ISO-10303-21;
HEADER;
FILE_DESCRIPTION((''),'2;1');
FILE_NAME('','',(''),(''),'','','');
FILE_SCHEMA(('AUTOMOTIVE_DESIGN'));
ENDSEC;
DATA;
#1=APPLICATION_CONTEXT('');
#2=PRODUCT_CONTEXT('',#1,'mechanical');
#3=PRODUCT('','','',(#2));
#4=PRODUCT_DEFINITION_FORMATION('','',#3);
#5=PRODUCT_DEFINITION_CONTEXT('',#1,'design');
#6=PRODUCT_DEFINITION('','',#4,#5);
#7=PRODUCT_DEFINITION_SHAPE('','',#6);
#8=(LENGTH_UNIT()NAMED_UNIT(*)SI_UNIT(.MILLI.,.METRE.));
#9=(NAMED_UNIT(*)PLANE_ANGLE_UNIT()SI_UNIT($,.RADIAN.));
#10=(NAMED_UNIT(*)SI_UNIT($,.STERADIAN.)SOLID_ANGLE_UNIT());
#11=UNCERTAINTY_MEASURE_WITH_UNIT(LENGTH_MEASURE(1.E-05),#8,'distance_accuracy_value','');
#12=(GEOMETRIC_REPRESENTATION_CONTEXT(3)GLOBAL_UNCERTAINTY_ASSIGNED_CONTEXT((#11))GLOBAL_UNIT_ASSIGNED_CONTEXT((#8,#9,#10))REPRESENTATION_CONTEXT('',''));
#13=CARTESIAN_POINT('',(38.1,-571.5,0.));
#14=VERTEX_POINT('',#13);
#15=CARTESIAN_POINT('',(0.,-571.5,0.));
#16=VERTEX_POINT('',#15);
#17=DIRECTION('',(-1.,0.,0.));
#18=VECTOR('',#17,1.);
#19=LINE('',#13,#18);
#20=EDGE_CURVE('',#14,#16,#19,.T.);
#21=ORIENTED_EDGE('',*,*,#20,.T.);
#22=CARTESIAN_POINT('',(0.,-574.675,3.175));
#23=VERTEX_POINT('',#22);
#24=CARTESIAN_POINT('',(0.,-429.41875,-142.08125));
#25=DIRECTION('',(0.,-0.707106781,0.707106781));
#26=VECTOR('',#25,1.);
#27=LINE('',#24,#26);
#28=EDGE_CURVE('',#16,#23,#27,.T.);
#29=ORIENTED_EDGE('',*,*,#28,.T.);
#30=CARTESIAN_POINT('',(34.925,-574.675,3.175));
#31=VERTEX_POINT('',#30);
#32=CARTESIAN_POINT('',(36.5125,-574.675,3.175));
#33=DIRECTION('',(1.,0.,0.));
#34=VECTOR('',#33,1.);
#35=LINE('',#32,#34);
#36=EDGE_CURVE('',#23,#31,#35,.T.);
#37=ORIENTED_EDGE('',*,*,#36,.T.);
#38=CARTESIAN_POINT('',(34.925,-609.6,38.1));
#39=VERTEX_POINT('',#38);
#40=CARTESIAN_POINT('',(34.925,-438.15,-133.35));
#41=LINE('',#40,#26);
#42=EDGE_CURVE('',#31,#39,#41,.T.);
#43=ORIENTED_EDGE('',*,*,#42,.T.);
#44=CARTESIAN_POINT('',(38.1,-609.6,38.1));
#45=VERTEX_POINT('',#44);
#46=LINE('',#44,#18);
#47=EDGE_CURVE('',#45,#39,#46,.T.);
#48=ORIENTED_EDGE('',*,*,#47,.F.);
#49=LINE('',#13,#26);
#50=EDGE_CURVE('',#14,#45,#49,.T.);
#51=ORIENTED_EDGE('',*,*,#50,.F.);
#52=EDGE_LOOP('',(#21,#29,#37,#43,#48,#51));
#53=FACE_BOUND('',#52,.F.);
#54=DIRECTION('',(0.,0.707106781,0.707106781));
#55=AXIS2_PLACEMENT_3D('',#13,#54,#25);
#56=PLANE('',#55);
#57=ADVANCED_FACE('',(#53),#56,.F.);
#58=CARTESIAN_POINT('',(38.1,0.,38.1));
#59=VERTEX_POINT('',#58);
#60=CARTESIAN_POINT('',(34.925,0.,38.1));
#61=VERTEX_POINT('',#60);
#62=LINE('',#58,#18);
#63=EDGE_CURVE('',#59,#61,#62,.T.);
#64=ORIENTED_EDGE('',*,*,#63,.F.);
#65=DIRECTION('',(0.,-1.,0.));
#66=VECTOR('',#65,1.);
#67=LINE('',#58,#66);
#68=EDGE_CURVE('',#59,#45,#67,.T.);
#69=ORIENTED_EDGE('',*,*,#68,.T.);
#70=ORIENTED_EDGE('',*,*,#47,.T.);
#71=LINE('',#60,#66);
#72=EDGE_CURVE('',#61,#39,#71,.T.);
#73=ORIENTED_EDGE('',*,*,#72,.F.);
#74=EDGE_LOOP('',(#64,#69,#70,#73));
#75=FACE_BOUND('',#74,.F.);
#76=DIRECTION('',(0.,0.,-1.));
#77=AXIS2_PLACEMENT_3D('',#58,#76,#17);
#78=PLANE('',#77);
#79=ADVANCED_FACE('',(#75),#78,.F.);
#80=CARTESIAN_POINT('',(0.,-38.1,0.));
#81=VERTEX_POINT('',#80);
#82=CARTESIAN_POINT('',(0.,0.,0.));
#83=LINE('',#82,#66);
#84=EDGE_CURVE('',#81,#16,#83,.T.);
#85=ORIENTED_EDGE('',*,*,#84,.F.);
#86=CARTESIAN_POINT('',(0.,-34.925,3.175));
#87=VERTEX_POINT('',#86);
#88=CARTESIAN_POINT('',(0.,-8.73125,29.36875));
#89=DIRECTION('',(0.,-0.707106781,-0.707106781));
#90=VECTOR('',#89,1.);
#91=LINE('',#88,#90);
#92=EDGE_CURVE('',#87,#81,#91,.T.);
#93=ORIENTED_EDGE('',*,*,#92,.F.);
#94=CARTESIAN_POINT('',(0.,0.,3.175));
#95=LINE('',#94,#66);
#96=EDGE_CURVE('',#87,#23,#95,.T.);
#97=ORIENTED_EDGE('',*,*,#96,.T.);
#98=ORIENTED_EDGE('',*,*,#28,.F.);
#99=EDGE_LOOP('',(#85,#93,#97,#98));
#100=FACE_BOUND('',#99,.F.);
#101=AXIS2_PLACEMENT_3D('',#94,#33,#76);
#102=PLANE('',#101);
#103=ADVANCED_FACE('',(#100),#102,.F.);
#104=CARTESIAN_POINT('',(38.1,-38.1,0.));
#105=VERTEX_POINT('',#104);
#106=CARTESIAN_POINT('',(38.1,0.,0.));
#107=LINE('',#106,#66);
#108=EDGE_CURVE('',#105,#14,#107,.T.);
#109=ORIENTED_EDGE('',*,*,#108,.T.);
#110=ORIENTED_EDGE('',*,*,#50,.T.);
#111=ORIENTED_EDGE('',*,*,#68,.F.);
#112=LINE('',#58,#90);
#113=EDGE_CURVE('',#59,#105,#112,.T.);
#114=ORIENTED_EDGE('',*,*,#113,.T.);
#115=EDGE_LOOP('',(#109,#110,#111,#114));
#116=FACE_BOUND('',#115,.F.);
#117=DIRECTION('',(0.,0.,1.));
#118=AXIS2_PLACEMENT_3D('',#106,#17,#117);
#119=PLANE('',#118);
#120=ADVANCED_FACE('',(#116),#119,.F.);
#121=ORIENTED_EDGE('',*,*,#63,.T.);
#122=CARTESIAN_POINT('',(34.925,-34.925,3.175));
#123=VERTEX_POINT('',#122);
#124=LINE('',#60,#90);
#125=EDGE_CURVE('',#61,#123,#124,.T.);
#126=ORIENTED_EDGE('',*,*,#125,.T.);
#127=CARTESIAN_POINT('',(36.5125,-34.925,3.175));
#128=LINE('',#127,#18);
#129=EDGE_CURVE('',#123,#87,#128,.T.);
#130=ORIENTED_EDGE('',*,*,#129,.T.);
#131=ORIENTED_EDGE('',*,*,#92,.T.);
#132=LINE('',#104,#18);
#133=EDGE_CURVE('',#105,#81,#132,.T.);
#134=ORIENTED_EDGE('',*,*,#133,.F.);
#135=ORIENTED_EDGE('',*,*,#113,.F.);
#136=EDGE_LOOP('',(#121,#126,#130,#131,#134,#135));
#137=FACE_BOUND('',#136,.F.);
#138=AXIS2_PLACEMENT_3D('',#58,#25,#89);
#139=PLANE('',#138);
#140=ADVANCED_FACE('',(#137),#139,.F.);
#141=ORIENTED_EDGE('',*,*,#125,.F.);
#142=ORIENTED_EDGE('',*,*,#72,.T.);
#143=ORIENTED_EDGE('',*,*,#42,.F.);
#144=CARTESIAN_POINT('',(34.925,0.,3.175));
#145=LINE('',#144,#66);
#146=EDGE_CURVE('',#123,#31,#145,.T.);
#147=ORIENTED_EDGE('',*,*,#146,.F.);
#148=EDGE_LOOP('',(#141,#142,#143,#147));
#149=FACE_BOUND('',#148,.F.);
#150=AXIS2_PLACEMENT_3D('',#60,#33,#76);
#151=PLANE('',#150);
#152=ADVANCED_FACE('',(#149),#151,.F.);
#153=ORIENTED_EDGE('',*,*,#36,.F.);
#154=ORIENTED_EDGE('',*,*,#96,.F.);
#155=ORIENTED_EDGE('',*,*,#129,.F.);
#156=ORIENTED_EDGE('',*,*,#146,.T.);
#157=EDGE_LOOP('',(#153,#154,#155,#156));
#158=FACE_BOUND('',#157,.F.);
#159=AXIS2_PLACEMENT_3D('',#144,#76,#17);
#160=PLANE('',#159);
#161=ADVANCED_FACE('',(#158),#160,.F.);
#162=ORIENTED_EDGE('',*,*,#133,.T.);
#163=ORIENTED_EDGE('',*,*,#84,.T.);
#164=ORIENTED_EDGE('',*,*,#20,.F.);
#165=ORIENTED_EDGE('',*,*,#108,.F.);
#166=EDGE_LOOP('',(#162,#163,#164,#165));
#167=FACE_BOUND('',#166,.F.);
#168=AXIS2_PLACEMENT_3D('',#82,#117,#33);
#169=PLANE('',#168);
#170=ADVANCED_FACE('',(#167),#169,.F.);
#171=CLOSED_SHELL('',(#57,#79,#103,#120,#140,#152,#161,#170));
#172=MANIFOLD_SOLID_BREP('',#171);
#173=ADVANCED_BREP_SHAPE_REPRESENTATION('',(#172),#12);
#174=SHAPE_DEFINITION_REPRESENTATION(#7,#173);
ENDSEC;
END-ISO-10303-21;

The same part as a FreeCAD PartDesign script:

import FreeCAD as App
import Part
import Sketcher
from FreeCAD import Vector
Q = App.Units.Quantity

doc = App.newDocument("Part")
params = doc.addObject("Spreadsheet::Sheet", "Params")
for row, (alias, value) in enumerate([
    ("sketch1_width", "1.5 in"),
    ("sketch1_width2", "0.125 in"),
    ("pad1_length", "24 in"),
    ("sketch2_width", "1.5 in"),
], start=1):
    params.set(f"A{row}", alias)
    params.set(f"B{row}", "=" + value)
    params.setAlias(f"B{row}", alias)

body = doc.addObject("PartDesign::Body", "Body")

# Sketch on XZ plane
sketch1 = body.newObject("Sketcher::SketchObject", "Sketch")
sketch1.AttachmentSupport = (doc.getObject("XZ_Plane"), [""])
sketch1.MapMode = "FlatFace"
sketch1.addGeometry(Part.LineSegment(Vector(0, 3.2, 0), Vector(0, 0, 0)), False)
sketch1.addGeometry(Part.LineSegment(Vector(0, 0, 0), Vector(38.1, 0, 0)), False)
sketch1.addGeometry(Part.LineSegment(Vector(38.1, 0, 0), Vector(38.1, 38.1, 0)), False)
sketch1.addGeometry(Part.LineSegment(Vector(38.1, 38.1, 0), Vector(34.9, 38.1, 0)), False)
sketch1.addGeometry(Part.LineSegment(Vector(34.9, 38.1, 0), Vector(34.9, 3.2, 0)), False)
sketch1.addGeometry(Part.LineSegment(Vector(34.9, 3.2, 0), Vector(0, 3.2, 0)), False)
sketch1.addConstraint(Sketcher.Constraint("Coincident", 0, 2, 1, 1))
sketch1.addConstraint(Sketcher.Constraint("Coincident", 1, 2, 2, 1))
sketch1.addConstraint(Sketcher.Constraint("Coincident", 2, 2, 3, 1))
sketch1.addConstraint(Sketcher.Constraint("Coincident", 3, 2, 4, 1))
sketch1.addConstraint(Sketcher.Constraint("Coincident", 4, 2, 5, 1))
sketch1.addConstraint(Sketcher.Constraint("Coincident", 5, 2, 0, 1))
sketch1.addConstraint(Sketcher.Constraint("Vertical", 0))
sketch1.addConstraint(Sketcher.Constraint("Horizontal", 1))
sketch1.addConstraint(Sketcher.Constraint("Vertical", 2))
sketch1.addConstraint(Sketcher.Constraint("Horizontal", 3))
sketch1.addConstraint(Sketcher.Constraint("Vertical", 4))
sketch1.addConstraint(Sketcher.Constraint("Horizontal", 5))
sketch1.addConstraint(Sketcher.Constraint("Coincident", 0, 2, -1, 1))
sketch1.addConstraint(Sketcher.Constraint("Equal", 3, 0))
sketch1.addConstraint(Sketcher.Constraint("Equal", 1, 2))
sketch1.addConstraint(Sketcher.Constraint("DistanceX", 1, 1, 1, 2, Q("1.5 in")))
sketch1.addConstraint(Sketcher.Constraint("DistanceX", 3, 2, 3, 1, Q("0.125 in")))
sketch1.setExpression("Constraints[15]", "Params.sketch1_width")
sketch1.setExpression("Constraints[16]", "Params.sketch1_width2")
pad1 = body.newObject("PartDesign::Pad", "Pad")
pad1.Profile = sketch1
pad1.setExpression("Length", "Params.pad1_length")

# Sketch on YZ plane
sketch2 = body.newObject("Sketcher::SketchObject", "Sketch001")
sketch2.AttachmentSupport = (doc.getObject("YZ_Plane"), [""])
sketch2.MapMode = "FlatFace"
sketch2.AttachmentOffset = App.Placement(Vector(0, 0, 1.5 * 25.4), App.Rotation())
sketch2.addGeometry(Part.LineSegment(Vector(0, 0, 0), Vector(0, 38, 0)), False)
sketch2.addGeometry(Part.LineSegment(Vector(0, 38, 0), Vector(-38, 0, 0)), False)
sketch2.addGeometry(Part.LineSegment(Vector(-38, 0, 0), Vector(0, 0, 0)), False)
sketch2.addGeometry(Part.LineSegment(Vector(-572, 0, 0), Vector(-610, 38, 0)), False)
sketch2.addGeometry(Part.LineSegment(Vector(-610, 38, 0), Vector(-610, 0, 0)), False)
sketch2.addGeometry(Part.LineSegment(Vector(-610, 0, 0), Vector(-572, 0, 0)), False)
sketch2.addConstraint(Sketcher.Constraint("Coincident", 0, 2, 1, 1))
sketch2.addConstraint(Sketcher.Constraint("Coincident", 1, 2, 2, 1))
sketch2.addConstraint(Sketcher.Constraint("Coincident", 2, 2, 0, 1))
sketch2.addConstraint(Sketcher.Constraint("Coincident", 3, 2, 4, 1))
sketch2.addConstraint(Sketcher.Constraint("Coincident", 4, 2, 5, 1))
sketch2.addConstraint(Sketcher.Constraint("Coincident", 5, 2, 3, 1))
sketch2.addConstraint(Sketcher.Constraint("Vertical", 0))
sketch2.addConstraint(Sketcher.Constraint("Horizontal", 2))
sketch2.addConstraint(Sketcher.Constraint("Vertical", 4))
sketch2.addConstraint(Sketcher.Constraint("Horizontal", 5))
sketch2.addConstraint(Sketcher.Constraint("Coincident", 2, 2, -1, 1))
sketch2.addConstraint(Sketcher.Constraint("PointOnObject", 4, 2, -1))
sketch2.addConstraint(Sketcher.Constraint("Perpendicular", 1, 3))
sketch2.addConstraint(Sketcher.Constraint("Horizontal", 0, 2, 3, 2))
sketch2.addConstraint(Sketcher.Constraint("Equal", 2, 5))
sketch2.addConstraint(Sketcher.Constraint("DistanceX", 2, 1, 2, 2, Q("1.5 in")))
sketch2.addConstraint(Sketcher.Constraint("DistanceX", 3, 2, -1, 1, Q("24 in")))
sketch2.setExpression("Constraints[15]", "Params.sketch2_width")
pocket1 = body.newObject("PartDesign::Pocket", "Pocket")
pocket1.Profile = sketch2
pocket1.Type = "ThroughAll"

doc.recompute()
